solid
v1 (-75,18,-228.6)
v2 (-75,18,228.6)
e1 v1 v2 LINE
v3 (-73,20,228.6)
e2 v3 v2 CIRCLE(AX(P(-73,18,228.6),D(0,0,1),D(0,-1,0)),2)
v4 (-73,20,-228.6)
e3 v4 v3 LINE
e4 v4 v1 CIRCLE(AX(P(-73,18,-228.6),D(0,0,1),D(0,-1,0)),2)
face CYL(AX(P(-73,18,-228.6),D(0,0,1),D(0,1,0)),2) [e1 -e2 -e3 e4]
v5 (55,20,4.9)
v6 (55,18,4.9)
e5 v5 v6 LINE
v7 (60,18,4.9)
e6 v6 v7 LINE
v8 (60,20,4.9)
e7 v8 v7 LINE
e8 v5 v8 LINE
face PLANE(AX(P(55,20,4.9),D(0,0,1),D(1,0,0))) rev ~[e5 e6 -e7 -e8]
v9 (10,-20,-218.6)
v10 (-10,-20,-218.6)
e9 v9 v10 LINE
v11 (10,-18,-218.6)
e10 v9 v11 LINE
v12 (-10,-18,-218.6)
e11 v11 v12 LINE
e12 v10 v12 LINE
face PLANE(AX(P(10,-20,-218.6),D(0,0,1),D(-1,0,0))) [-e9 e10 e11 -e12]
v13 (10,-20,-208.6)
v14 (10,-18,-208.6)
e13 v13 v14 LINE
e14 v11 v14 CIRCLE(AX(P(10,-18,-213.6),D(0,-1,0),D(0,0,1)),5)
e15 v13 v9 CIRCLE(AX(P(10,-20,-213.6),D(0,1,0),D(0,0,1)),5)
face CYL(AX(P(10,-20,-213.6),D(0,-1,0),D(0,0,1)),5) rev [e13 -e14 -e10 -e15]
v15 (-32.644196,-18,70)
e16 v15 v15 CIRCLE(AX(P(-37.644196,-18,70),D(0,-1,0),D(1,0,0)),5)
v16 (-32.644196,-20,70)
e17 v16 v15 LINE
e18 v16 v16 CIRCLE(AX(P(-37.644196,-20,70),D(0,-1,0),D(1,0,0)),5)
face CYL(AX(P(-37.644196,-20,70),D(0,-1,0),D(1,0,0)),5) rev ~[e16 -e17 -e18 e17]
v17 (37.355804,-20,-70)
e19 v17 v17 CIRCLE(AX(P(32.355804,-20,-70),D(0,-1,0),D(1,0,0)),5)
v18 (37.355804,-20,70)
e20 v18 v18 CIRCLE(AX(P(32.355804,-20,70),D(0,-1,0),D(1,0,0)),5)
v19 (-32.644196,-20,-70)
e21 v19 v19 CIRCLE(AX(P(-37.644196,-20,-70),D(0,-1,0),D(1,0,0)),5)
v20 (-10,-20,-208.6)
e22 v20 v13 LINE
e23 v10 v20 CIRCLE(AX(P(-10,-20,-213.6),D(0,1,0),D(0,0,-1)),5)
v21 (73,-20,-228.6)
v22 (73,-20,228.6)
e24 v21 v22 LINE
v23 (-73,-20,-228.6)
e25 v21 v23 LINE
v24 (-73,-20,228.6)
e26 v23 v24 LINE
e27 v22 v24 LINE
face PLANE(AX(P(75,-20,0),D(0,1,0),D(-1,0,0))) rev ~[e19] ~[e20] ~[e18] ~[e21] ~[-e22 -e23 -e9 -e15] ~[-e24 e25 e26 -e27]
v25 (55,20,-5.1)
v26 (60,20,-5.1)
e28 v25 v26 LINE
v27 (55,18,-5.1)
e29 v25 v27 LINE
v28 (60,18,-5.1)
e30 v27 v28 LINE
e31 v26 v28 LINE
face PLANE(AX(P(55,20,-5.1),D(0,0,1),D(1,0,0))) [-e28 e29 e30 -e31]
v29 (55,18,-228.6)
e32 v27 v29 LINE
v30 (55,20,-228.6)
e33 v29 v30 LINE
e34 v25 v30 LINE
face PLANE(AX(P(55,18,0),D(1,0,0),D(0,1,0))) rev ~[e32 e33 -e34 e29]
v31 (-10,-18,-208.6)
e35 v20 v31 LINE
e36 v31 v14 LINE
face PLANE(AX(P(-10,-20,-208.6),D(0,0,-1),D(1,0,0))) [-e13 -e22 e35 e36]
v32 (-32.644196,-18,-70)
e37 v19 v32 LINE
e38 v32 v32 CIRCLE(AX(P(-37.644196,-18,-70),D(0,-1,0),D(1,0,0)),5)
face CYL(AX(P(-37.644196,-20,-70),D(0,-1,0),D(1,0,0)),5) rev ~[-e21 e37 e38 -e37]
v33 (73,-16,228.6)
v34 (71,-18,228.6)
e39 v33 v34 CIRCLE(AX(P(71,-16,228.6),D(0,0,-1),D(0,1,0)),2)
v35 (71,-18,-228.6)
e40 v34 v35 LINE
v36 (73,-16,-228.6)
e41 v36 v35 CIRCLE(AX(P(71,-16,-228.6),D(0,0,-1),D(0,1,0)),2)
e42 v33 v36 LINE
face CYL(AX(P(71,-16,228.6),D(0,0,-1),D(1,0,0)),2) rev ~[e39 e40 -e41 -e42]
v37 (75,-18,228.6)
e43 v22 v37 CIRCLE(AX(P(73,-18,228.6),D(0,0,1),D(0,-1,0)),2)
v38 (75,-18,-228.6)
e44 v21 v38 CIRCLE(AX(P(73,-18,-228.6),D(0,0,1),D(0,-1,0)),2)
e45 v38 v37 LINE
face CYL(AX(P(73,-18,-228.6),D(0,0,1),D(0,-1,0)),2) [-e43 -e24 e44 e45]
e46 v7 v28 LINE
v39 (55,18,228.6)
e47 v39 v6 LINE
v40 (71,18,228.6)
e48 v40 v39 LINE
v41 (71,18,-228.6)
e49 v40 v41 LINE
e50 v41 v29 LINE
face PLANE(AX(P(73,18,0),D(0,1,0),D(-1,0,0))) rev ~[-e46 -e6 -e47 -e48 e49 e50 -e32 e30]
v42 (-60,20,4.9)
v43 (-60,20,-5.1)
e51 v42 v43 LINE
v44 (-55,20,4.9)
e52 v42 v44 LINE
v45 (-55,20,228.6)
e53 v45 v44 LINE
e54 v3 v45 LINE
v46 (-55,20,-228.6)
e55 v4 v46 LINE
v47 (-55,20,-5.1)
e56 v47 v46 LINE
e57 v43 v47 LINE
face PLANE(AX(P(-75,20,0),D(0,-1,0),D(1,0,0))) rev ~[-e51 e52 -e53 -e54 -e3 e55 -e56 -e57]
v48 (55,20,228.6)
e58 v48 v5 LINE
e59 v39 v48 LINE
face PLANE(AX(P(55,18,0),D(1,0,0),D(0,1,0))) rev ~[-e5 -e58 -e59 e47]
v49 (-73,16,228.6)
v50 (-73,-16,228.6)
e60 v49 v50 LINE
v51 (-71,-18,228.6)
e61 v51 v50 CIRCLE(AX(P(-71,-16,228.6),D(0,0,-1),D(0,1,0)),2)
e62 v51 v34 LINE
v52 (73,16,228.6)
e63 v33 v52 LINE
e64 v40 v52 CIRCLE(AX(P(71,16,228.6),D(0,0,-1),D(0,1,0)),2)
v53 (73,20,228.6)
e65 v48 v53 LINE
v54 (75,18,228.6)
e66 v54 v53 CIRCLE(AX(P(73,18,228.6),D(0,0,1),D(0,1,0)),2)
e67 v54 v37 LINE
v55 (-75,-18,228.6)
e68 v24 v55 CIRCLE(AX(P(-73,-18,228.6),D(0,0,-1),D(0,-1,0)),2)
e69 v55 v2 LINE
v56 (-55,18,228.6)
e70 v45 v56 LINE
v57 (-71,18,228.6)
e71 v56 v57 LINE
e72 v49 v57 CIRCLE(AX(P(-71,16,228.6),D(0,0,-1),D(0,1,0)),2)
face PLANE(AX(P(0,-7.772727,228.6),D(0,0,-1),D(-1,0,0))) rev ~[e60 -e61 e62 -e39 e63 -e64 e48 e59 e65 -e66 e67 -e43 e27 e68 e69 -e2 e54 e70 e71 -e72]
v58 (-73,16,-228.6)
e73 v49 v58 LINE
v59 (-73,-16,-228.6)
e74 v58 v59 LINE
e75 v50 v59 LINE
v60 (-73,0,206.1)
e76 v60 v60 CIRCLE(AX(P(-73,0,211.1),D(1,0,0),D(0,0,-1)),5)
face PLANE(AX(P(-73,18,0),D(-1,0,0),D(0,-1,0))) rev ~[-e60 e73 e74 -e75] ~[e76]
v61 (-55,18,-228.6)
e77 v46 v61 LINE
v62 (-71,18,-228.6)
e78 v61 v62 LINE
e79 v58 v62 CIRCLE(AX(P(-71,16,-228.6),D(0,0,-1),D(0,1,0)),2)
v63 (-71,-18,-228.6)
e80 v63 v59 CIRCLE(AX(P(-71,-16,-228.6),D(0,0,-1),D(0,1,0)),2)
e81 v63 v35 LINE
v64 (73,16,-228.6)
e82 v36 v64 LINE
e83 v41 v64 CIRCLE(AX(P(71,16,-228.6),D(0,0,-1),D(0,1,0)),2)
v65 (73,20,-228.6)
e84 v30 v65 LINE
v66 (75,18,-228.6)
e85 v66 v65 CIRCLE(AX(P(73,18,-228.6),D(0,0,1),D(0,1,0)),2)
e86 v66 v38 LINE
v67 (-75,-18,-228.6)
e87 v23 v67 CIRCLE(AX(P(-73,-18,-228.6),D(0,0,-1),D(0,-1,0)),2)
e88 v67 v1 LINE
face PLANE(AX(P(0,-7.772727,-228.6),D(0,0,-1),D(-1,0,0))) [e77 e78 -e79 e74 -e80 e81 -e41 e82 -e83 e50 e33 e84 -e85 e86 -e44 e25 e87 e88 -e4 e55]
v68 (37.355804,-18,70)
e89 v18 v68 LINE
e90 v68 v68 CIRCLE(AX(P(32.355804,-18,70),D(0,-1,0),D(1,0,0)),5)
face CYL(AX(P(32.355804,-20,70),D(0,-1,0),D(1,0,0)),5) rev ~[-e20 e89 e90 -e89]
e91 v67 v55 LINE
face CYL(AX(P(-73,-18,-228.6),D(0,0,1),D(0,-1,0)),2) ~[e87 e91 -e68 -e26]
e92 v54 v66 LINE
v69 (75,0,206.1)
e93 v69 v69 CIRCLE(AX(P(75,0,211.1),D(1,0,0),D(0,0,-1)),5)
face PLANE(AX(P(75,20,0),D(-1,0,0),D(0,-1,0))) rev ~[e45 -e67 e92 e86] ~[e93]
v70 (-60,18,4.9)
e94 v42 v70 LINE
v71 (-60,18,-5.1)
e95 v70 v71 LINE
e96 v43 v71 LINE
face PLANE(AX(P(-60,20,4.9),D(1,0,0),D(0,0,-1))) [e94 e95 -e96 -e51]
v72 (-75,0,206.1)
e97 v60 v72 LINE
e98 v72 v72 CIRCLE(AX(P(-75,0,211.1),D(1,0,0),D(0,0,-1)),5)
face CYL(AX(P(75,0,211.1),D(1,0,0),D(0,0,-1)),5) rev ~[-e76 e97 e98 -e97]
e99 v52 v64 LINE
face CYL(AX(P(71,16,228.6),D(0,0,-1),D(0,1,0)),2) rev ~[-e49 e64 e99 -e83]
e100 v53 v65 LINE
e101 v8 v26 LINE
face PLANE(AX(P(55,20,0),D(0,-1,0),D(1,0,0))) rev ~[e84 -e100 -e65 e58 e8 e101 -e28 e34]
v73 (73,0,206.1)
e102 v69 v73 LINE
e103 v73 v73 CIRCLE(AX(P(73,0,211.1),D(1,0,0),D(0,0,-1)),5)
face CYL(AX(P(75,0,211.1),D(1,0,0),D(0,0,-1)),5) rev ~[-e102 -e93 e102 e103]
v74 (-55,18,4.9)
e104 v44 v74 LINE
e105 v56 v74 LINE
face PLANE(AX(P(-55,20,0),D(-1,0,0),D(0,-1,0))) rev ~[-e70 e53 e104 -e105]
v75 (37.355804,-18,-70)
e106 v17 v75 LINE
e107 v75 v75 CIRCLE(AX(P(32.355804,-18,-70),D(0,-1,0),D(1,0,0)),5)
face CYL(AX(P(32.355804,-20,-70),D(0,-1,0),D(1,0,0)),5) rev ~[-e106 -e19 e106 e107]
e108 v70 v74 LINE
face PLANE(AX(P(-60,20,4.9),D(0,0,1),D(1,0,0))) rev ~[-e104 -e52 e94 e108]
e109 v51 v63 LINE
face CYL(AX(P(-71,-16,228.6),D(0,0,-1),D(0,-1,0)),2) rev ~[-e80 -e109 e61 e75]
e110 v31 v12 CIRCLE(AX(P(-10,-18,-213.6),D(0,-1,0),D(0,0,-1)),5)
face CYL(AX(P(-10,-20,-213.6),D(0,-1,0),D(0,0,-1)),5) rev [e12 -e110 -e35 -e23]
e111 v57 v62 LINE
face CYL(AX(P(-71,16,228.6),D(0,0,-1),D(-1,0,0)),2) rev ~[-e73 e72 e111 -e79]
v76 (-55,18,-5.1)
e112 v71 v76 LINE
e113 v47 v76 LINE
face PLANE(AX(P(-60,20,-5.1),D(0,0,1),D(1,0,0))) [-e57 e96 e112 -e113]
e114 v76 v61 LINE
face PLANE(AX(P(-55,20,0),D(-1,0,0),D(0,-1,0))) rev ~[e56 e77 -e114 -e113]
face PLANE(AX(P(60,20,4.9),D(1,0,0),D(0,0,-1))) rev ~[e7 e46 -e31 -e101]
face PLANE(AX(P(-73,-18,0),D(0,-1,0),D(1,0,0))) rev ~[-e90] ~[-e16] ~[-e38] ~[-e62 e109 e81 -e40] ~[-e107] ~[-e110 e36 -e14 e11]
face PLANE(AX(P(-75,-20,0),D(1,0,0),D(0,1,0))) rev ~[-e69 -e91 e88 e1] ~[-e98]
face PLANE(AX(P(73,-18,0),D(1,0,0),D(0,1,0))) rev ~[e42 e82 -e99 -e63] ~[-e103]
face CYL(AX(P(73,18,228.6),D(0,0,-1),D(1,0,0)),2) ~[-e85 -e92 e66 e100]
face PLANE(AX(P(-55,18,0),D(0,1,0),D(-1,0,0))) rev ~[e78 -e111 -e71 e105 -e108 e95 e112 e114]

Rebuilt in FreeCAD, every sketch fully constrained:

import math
import FreeCAD as App
import Part
import Sketcher


def edges_at(feature, points):
    """Names of the edges that pass closest to the given points."""
    edges = feature.Shape.Edges
    near = lambda p: min(range(len(edges)), key=lambda i: edges[i].distToShape(Part.Vertex(*p))[0])
    return sorted({f"Edge{near(p) + 1}" for p in points})


def add_polygon(sketch, points):
    """Adds a closed chain of lines whose ends are joined by coincident constraints."""
    first, n = sketch.GeometryCount, len(points)
    for a, b in zip(points, points[1:] + points[:1]):
        sketch.addGeometry(Part.LineSegment(App.Vector(*a, 0), App.Vector(*b, 0)), False)
    for i in range(n):
        sketch.addConstraint(Sketcher.Constraint("Coincident", first + i, 2, first + (i + 1) % n, 1))

doc = App.newDocument("Part")
body = doc.addObject("PartDesign::Body", "Body")

sketch1 = body.newObject("Sketcher::SketchObject", "Sketch")
sketch1.AttachmentSupport = (doc.getObject("XY_Plane"), [""])
sketch1.MapMode = "FlatFace"
add_polygon(sketch1, [(-55, 20), (-75, 20), (-75, -20), (75, -20), (75, 20), (55, 20), (55, 18), (73, 18), (73, -18), (-73, -18), (-73, 18), (-55, 18)])
sketch1.addConstraint(Sketcher.Constraint("Horizontal", 0))
sketch1.addConstraint(Sketcher.Constraint("Vertical", 1))
sketch1.addConstraint(Sketcher.Constraint("Horizontal", 2))
sketch1.addConstraint(Sketcher.Constraint("Vertical", 3))
sketch1.addConstraint(Sketcher.Constraint("Horizontal", 4))
sketch1.addConstraint(Sketcher.Constraint("Vertical", 5))
sketch1.addConstraint(Sketcher.Constraint("Horizontal", 6))
sketch1.addConstraint(Sketcher.Constraint("Vertical", 7))
sketch1.addConstraint(Sketcher.Constraint("Horizontal", 8))
sketch1.addConstraint(Sketcher.Constraint("Vertical", 9))
sketch1.addConstraint(Sketcher.Constraint("Horizontal", 10))
sketch1.addConstraint(Sketcher.Constraint("Vertical", 11))
sketch1.addConstraint(Sketcher.Constraint("Symmetric", 0, 2, 2, 2, -1, 1))
sketch1.addConstraint(Sketcher.Constraint("Symmetric", 6, 2, 8, 2, -1, 1))
sketch1.addConstraint(Sketcher.Constraint("Symmetric", 5, 2, 10, 2, -2))
sketch1.addConstraint(Sketcher.Constraint("Horizontal", 0, 2, 3, 2))
sketch1.addConstraint(Sketcher.Constraint("DistanceX", 0, 2, 0, 1, 20.0))
sketch1.addConstraint(Sketcher.Constraint("DistanceX", 2, 1, 2, 2, 150.0))
sketch1.addConstraint(Sketcher.Constraint("DistanceX", 6, 1, 6, 2, 18.0))
sketch1.addConstraint(Sketcher.Constraint("DistanceY", 1, 2, 1, 1, 40.0))
sketch1.addConstraint(Sketcher.Constraint("DistanceY", 5, 2, 5, 1, 2.0))
pad1 = body.newObject("PartDesign::Pad", "Pad")
pad1.Profile = sketch1
pad1.Length = 457.2
pad1.Midplane = True
doc.recompute()

fillet = body.newObject("PartDesign::Fillet", "Fillet")
fillet.Base = (pad1, edges_at(pad1, [
    (75, 20, 0),
    (75, -20, 0),
    (-75, -20, 0),
    (-75, 20, 0),
    (-73, 18, 0),
    (-73, -18, 0),
    (73, -18, 0),
    (73, 18, 0),
]))
fillet.Radius = 2

sketch2 = body.newObject("Sketcher::SketchObject", "Sketch001")
sketch2.AttachmentSupport = (doc.getObject("YZ_Plane"), [""])
sketch2.MapMode = "FlatFace"
sketch2.AttachmentOffset = App.Placement(App.Vector(0, 0, 75), App.Rotation())
sketch2.addGeometry(Part.Circle(App.Vector(0, 211, 0), App.Vector(0, 0, 1), 5), False)
sketch2.addConstraint(Sketcher.Constraint("PointOnObject", 0, 3, -2))
sketch2.addConstraint(Sketcher.Constraint("Diameter", 0, 10.0))
sketch2.addConstraint(Sketcher.Constraint("DistanceY", -1, 1, 0, 3, 211.1))
pocket1 = body.newObject("PartDesign::Pocket", "Pocket")
pocket1.Profile = sketch2
pocket1.Type = "ThroughAll"

sketch3 = body.newObject("Sketcher::SketchObject", "Sketch002")
sketch3.AttachmentSupport = (doc.getObject("XZ_Plane"), [""])
sketch3.MapMode = "FlatFace"
sketch3.AttachmentOffset = App.Placement(App.Vector(0, 0, -20), App.Rotation())
add_polygon(sketch3, [(-60, -5), (-60, 5), (-55, 5), (-55, -5)])
add_polygon(sketch3, [(55, -5), (55, 5), (60, 5), (60, -5)])
sketch3.addConstraint(Sketcher.Constraint("Vertical", 0))
sketch3.addConstraint(Sketcher.Constraint("Horizontal", 1))
sketch3.addConstraint(Sketcher.Constraint("Vertical", 2))
sketch3.addConstraint(Sketcher.Constraint("Horizontal", 3))
sketch3.addConstraint(Sketcher.Constraint("Vertical", 4))
sketch3.addConstraint(Sketcher.Constraint("Horizontal", 5))
sketch3.addConstraint(Sketcher.Constraint("Vertical", 6))
sketch3.addConstraint(Sketcher.Constraint("Horizontal", 7))
sketch3.addConstraint(Sketcher.Constraint("Symmetric", 1, 2, 4, 2, -2))
sketch3.addConstraint(Sketcher.Constraint("Symmetric", 3, 2, 6, 2, -2))
sketch3.addConstraint(Sketcher.Constraint("DistanceX", 1, 1, 1, 2, 5.0))
sketch3.addConstraint(Sketcher.Constraint("DistanceY", 0, 1, 0, 2, 10.0))
sketch3.addConstraint(Sketcher.Constraint("DistanceX", 0, 2, -1, 1, 60.0))
sketch3.addConstraint(Sketcher.Constraint("DistanceY", -1, 1, 0, 2, 4.9))
pocket2 = body.newObject("PartDesign::Pocket", "Pocket001")
pocket2.Profile = sketch3
pocket2.Length = 10
pocket2.Reversed = True

sketch4 = body.newObject("Sketcher::SketchObject", "Sketch003")
sketch4.AttachmentSupport = (doc.getObject("XZ_Plane"), [""])
sketch4.MapMode = "FlatFace"
sketch4.AttachmentOffset = App.Placement(App.Vector(0, 0, 20), App.Rotation())
sketch4.addGeometry(Part.Circle(App.Vector(-38, -70, 0), App.Vector(0, 0, 1), 5), False)
sketch4.addGeometry(Part.Circle(App.Vector(32, -70, 0), App.Vector(0, 0, 1), 5), False)
sketch4.addGeometry(Part.Circle(App.Vector(32, 70, 0), App.Vector(0, 0, 1), 5), False)
sketch4.addGeometry(Part.Circle(App.Vector(-38, 70, 0), App.Vector(0, 0, 1), 5), False)
sketch4.addGeometry(Part.LineSegment(App.Vector(10, -209, 0), App.Vector(-10, -209, 0)), False)
sketch4.addGeometry(Part.ArcOfCircle(Part.Circle(App.Vector(-10, -214, 0), App.Vector(0, 0, 1), 5), math.radians(90), math.radians(270)), False)
sketch4.addGeometry(Part.LineSegment(App.Vector(-10, -219, 0), App.Vector(10, -219, 0)), False)
sketch4.addGeometry(Part.ArcOfCircle(Part.Circle(App.Vector(10, -214, 0), App.Vector(0, 0, 1), 5), math.radians(-90), math.radians(90)), False)
sketch4.addConstraint(Sketcher.Constraint("Tangent", 4, 2, 5, 1))
sketch4.addConstraint(Sketcher.Constraint("Tangent", 5, 2, 6, 1))
sketch4.addConstraint(Sketcher.Constraint("Tangent", 6, 2, 7, 1))
sketch4.addConstraint(Sketcher.Constraint("Tangent", 7, 2, 4, 1))
sketch4.addConstraint(Sketcher.Constraint("Horizontal", 4))
sketch4.addConstraint(Sketcher.Constraint("Horizontal", 6))
sketch4.addConstraint(Sketcher.Constraint("Equal", 0, 1))
sketch4.addConstraint(Sketcher.Constraint("Equal", 1, 2))
sketch4.addConstraint(Sketcher.Constraint("Equal", 2, 3))
sketch4.addConstraint(Sketcher.Constraint("Equal", 3, 5))
sketch4.addConstraint(Sketcher.Constraint("Symmetric", 1, 3, 2, 3, -1))
sketch4.addConstraint(Sketcher.Constraint("Symmetric", 0, 3, 3, 3, -1))
sketch4.addConstraint(Sketcher.Constraint("Horizontal", 0, 3, 1, 3))
sketch4.addConstraint(Sketcher.Constraint("Diameter", 0, 10.0))
sketch4.addConstraint(Sketcher.Constraint("DistanceX", 4, 2, 4, 1, 20.0))
sketch4.addConstraint(Sketcher.Constraint("DistanceY", 0, 3, -1, 1, 70.0))
sketch4.addConstraint(Sketcher.Constraint("DistanceX", 5, 3, -1, 1, 10.0))
sketch4.addConstraint(Sketcher.Constraint("DistanceX", 0, 3, 1, 3, 70.0))
sketch4.addConstraint(Sketcher.Constraint("DistanceY", 5, 3, -1, 1, 213.6))
sketch4.addConstraint(Sketcher.Constraint("DistanceX", 0, 3, -1, 1, 37.644196))
pocket3 = body.newObject("PartDesign::Pocket", "Pocket002")
pocket3.Profile = sketch4
pocket3.Length = 10

doc.recompute()
